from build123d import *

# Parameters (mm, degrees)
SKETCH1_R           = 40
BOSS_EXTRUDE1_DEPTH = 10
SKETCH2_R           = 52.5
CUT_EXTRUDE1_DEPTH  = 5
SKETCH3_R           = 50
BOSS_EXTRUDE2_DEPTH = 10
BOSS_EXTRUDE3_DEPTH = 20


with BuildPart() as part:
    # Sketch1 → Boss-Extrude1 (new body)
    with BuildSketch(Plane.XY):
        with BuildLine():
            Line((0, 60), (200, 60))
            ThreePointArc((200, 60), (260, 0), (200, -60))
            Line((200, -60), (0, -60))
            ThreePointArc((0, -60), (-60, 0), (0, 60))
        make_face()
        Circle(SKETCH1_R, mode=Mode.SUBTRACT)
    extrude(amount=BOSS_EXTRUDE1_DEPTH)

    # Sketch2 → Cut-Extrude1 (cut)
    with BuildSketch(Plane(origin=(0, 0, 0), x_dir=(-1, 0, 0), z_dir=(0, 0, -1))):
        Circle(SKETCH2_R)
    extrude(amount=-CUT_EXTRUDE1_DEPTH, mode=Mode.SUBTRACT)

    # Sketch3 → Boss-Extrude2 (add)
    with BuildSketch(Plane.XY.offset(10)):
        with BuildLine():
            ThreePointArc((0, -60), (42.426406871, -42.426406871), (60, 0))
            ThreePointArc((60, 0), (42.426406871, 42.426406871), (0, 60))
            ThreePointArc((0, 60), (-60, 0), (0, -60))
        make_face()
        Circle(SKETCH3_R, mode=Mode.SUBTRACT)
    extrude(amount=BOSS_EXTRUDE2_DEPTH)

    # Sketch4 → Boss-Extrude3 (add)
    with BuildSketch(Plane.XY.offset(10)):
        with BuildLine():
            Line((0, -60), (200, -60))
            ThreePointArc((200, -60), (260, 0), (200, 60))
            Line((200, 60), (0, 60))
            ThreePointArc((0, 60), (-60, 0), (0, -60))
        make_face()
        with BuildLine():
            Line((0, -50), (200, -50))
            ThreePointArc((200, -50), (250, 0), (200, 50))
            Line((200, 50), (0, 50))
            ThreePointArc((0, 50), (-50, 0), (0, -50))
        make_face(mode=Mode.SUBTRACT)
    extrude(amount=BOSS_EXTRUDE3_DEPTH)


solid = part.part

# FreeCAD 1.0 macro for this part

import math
import FreeCAD as App
import Part
import Sketcher

V = App.Vector
Q = App.Units.Quantity

doc = App.newDocument("Part")
body = doc.addObject("PartDesign::Body", "Body")

sketch1 = body.newObject("Sketcher::SketchObject", "Sketch")
sketch1.AttachmentSupport = (doc.getObject("XY_Plane"), [""])
sketch1.MapMode = "FlatFace"
sketch1.addGeometry(Part.LineSegment(V(200, 60, 0), V(0, 60, 0)), False)
sketch1.addGeometry(Part.ArcOfCircle(Part.Circle(V(0, 0, 0), V(0, 0, 1), 60), math.radians(90), math.radians(270)), False)
sketch1.addGeometry(Part.LineSegment(V(0, -60, 0), V(200, -60, 0)), False)
sketch1.addGeometry(Part.ArcOfCircle(Part.Circle(V(200, 0, 0), V(0, 0, 1), 60), math.radians(-90), math.radians(90)), False)
sketch1.addGeometry(Part.Circle(V(0, 0, 0), V(0, 0, 1), 40), False)
sketch1.addConstraint(Sketcher.Constraint("Tangent", 0, 2, 1, 1))
sketch1.addConstraint(Sketcher.Constraint("Tangent", 1, 2, 2, 1))
sketch1.addConstraint(Sketcher.Constraint("Tangent", 2, 2, 3, 1))
sketch1.addConstraint(Sketcher.Constraint("Tangent", 3, 2, 0, 1))
sketch1.addConstraint(Sketcher.Constraint("Horizontal", 0))
sketch1.addConstraint(Sketcher.Constraint("Horizontal", 2))
sketch1.addConstraint(Sketcher.Constraint("Coincident", 1, 3, -1, 1))
sketch1.addConstraint(Sketcher.Constraint("Coincident", 4, 3, -1, 1))
sketch1.addConstraint(Sketcher.Constraint("Diameter", 4, Q("80 mm")))
sketch1.addConstraint(Sketcher.Constraint("Radius", 1, Q("60 mm")))
sketch1.addConstraint(Sketcher.Constraint("DistanceX", 0, 2, 0, 1, Q("200 mm")))
pad1 = body.newObject("PartDesign::Pad", "Pad")
pad1.Profile = sketch1
pad1.Length = 10

sketch2 = body.newObject("Sketcher::SketchObject", "Sketch001")
sketch2.AttachmentSupport = (doc.getObject("XY_Plane"), [""])
sketch2.MapMode = "FlatFace"
sketch2.addGeometry(Part.Circle(V(0, 0, 0), V(0, 0, 1), 52), False)
sketch2.addConstraint(Sketcher.Constraint("Coincident", 0, 3, -1, 1))
sketch2.addConstraint(Sketcher.Constraint("Diameter", 0, Q("105 mm")))
pocket1 = body.newObject("PartDesign::Pocket", "Pocket")
pocket1.Profile = sketch2
pocket1.Length = 5
pocket1.Reversed = True

sketch3 = body.newObject("Sketcher::SketchObject", "Sketch002")
sketch3.AttachmentSupport = (doc.getObject("XY_Plane"), [""])
sketch3.MapMode = "FlatFace"
sketch3.AttachmentOffset = App.Placement(V(0, 0, 10), App.Rotation())
sketch3.addGeometry(Part.ArcOfCircle(Part.Circle(V(0, 0, 0), V(0, 0, 1), 60), math.radians(-90), math.radians(0)), False)
sketch3.addGeometry(Part.ArcOfCircle(Part.Circle(V(0, 0, 0), V(0, 0, 1), 60), math.radians(0), math.radians(90)), False)
sketch3.addGeometry(Part.ArcOfCircle(Part.Circle(V(0, 0, 0), V(0, 0, 1), 60), math.radians(90), math.radians(270)), False)
sketch3.addGeometry(Part.Circle(V(0, 0, 0), V(0, 0, 1), 50), False)
sketch3.addConstraint(Sketcher.Constraint("Tangent", 0, 2, 1, 1))
sketch3.addConstraint(Sketcher.Constraint("Tangent", 1, 2, 2, 1))
sketch3.addConstraint(Sketcher.Constraint("Tangent", 2, 2, 0, 1))
sketch3.addConstraint(Sketcher.Constraint("Coincident", 0, 3, -1, 1))
sketch3.addConstraint(Sketcher.Constraint("Coincident", 3, 3, -1, 1))
sketch3.addConstraint(Sketcher.Constraint("PointOnObject", 0, 2, -1))
sketch3.addConstraint(Sketcher.Constraint("PointOnObject", 1, 2, -2))
sketch3.addConstraint(Sketcher.Constraint("PointOnObject", 2, 2, -2))
sketch3.addConstraint(Sketcher.Constraint("Diameter", 3, Q("100 mm")))
sketch3.addConstraint(Sketcher.Constraint("Radius", 0, Q("60 mm")))
pad2 = body.newObject("PartDesign::Pad", "Pad001")
pad2.Profile = sketch3
pad2.Length = 10

sketch4 = body.newObject("Sketcher::SketchObject", "Sketch003")
sketch4.AttachmentSupport = (doc.getObject("XY_Plane"), [""])
sketch4.MapMode = "FlatFace"
sketch4.AttachmentOffset = App.Placement(V(0, 0, 10), App.Rotation())
sketch4.addGeometry(Part.LineSegment(V(0, -60, 0), V(200, -60, 0)), False)
sketch4.addGeometry(Part.ArcOfCircle(Part.Circle(V(200, 0, 0), V(0, 0, 1), 60), math.radians(-90), math.radians(90)), False)
sketch4.addGeometry(Part.LineSegment(V(200, 60, 0), V(0, 60, 0)), False)
sketch4.addGeometry(Part.ArcOfCircle(Part.Circle(V(0, 0, 0), V(0, 0, 1), 60), math.radians(90), math.radians(270)), False)
sketch4.addGeometry(Part.LineSegment(V(200, -50, 0), V(0, -50, 0)), False)
sketch4.addGeometry(Part.ArcOfCircle(Part.Circle(V(0, 0, 0), V(0, 0, 1), 50), math.radians(90), math.radians(270)), False)
sketch4.addGeometry(Part.LineSegment(V(0, 50, 0), V(200, 50, 0)), False)
sketch4.addGeometry(Part.ArcOfCircle(Part.Circle(V(200, 0, 0), V(0, 0, 1), 50), math.radians(-90), math.radians(90)), False)
sketch4.addConstraint(Sketcher.Constraint("Tangent", 0, 2, 1, 1))
sketch4.addConstraint(Sketcher.Constraint("Tangent", 1, 2, 2, 1))
sketch4.addConstraint(Sketcher.Constraint("Tangent", 2, 2, 3, 1))
sketch4.addConstraint(Sketcher.Constraint("Tangent", 3, 2, 0, 1))
sketch4.addConstraint(Sketcher.Constraint("Tangent", 4, 2, 5, 2))
sketch4.addConstraint(Sketcher.Constraint("Tangent", 5, 1, 6, 1))
sketch4.addConstraint(Sketcher.Constraint("Tangent", 6, 2, 7, 2))
sketch4.addConstraint(Sketcher.Constraint("Tangent", 7, 1, 4, 1))
sketch4.addConstraint(Sketcher.Constraint("Horizontal", 0))
sketch4.addConstraint(Sketcher.Constraint("Horizontal", 2))
sketch4.addConstraint(Sketcher.Constraint("Horizontal", 4))
sketch4.addConstraint(Sketcher.Constraint("Horizontal", 6))
sketch4.addConstraint(Sketcher.Constraint("Coincident", 3, 3, -1, 1))
sketch4.addConstraint(Sketcher.Constraint("Coincident", 5, 3, -1, 1))
sketch4.addConstraint(Sketcher.Constraint("Vertical", 7, 3, 0, 2))
sketch4.addConstraint(Sketcher.Constraint("Radius", 1, Q("60 mm")))
sketch4.addConstraint(Sketcher.Constraint("Radius", 5, Q("50 mm")))
sketch4.addConstraint(Sketcher.Constraint("DistanceX", 0, 1, 0, 2, Q("200 mm")))
pad3 = body.newObject("PartDesign::Pad", "Pad002")
pad3.Profile = sketch4
pad3.Length = 20

doc.recompute()
